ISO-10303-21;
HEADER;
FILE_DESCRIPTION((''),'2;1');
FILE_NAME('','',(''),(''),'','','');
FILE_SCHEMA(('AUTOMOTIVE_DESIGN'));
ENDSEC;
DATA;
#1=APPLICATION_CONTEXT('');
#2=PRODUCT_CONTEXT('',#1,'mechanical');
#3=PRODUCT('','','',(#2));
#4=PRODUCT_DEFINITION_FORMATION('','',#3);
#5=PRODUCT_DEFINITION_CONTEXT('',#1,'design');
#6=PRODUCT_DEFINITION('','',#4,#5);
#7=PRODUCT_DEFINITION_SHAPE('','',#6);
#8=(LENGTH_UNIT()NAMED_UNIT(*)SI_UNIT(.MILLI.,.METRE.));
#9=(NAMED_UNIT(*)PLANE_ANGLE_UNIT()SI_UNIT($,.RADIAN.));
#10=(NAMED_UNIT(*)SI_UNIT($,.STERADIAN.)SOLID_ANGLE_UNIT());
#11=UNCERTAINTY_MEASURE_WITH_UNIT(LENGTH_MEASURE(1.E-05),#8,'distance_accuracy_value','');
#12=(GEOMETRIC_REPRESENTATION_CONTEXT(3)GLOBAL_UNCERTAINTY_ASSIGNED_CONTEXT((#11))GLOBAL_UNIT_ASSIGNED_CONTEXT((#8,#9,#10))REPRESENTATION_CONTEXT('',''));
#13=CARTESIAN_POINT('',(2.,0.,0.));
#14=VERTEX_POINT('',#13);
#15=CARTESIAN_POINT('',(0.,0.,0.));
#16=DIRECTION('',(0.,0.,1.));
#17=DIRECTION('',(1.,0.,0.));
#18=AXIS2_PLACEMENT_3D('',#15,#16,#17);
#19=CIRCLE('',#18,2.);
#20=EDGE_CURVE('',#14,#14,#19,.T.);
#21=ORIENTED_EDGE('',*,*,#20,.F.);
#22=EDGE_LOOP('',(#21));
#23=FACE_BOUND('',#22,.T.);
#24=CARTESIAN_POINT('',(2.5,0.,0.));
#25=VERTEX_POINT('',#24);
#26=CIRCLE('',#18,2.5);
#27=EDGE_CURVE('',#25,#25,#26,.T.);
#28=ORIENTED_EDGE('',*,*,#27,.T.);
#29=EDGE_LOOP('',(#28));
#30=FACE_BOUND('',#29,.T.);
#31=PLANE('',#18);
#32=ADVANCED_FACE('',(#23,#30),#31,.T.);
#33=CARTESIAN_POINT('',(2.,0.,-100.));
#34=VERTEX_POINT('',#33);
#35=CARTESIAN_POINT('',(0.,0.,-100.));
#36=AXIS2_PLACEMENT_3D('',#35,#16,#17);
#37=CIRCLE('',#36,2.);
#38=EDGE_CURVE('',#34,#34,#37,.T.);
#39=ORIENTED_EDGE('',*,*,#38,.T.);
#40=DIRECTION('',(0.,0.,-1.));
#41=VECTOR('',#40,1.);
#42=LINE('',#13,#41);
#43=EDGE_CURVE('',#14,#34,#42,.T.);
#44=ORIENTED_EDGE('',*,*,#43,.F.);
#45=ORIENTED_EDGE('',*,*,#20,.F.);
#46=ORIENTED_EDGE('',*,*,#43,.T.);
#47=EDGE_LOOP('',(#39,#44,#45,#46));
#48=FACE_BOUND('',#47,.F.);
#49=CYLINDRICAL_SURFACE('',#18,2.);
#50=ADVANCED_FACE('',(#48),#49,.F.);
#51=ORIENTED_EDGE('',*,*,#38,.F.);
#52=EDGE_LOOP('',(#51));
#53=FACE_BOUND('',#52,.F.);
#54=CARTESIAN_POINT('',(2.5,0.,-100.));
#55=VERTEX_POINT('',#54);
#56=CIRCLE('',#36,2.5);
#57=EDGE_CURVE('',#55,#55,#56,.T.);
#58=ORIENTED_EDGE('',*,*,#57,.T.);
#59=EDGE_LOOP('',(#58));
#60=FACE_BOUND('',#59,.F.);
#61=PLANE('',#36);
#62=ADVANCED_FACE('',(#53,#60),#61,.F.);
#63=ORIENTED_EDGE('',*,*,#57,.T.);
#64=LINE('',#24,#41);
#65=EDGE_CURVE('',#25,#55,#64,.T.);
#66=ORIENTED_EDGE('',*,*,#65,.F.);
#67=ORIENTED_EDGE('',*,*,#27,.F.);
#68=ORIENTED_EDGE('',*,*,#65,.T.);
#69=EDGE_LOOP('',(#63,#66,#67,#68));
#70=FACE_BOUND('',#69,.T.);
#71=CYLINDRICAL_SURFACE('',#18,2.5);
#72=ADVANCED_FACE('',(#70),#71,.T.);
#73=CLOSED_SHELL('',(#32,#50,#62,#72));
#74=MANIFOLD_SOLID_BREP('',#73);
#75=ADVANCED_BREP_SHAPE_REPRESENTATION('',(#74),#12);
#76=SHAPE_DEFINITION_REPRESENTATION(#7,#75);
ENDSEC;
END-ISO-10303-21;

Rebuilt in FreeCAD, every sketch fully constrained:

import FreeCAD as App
import Part
import Sketcher

doc = App.newDocument("Part")
body = doc.addObject("PartDesign::Body", "Body")

# Sketch on XY plane
sketch1 = body.newObject("Sketcher::SketchObject", "Sketch")
sketch1.AttachmentSupport = (doc.getObject("XY_Plane"), [""])
sketch1.MapMode = "FlatFace"
sketch1.addGeometry(Part.Circle(App.Vector(0, 0, 0), App.Vector(0, 0, 1), 2.5), False)
sketch1.addConstraint([
    Sketcher.Constraint("Coincident", 0, 3, -1, 1),
    Sketcher.Constraint("Diameter", 0, 5.0),
])
pad1 = body.newObject("PartDesign::Pad", "Pad")
pad1.Profile = sketch1
pad1.Length = 100
pad1.Reversed = True

# Sketch on XY plane
sketch2 = body.newObject("Sketcher::SketchObject", "Sketch001")
sketch2.AttachmentSupport = (doc.getObject("XY_Plane"), [""])
sketch2.MapMode = "FlatFace"
sketch2.addGeometry(Part.Circle(App.Vector(0, 0, 0), App.Vector(0, 0, 1), 2), False)
sketch2.addConstraint([
    Sketcher.Constraint("Coincident", 0, 3, -1, 1),
    Sketcher.Constraint("Diameter", 0, 4.0),
])
pocket1 = body.newObject("PartDesign::Pocket", "Pocket")
pocket1.Profile = sketch2
pocket1.Length = 101

doc.recompute()
